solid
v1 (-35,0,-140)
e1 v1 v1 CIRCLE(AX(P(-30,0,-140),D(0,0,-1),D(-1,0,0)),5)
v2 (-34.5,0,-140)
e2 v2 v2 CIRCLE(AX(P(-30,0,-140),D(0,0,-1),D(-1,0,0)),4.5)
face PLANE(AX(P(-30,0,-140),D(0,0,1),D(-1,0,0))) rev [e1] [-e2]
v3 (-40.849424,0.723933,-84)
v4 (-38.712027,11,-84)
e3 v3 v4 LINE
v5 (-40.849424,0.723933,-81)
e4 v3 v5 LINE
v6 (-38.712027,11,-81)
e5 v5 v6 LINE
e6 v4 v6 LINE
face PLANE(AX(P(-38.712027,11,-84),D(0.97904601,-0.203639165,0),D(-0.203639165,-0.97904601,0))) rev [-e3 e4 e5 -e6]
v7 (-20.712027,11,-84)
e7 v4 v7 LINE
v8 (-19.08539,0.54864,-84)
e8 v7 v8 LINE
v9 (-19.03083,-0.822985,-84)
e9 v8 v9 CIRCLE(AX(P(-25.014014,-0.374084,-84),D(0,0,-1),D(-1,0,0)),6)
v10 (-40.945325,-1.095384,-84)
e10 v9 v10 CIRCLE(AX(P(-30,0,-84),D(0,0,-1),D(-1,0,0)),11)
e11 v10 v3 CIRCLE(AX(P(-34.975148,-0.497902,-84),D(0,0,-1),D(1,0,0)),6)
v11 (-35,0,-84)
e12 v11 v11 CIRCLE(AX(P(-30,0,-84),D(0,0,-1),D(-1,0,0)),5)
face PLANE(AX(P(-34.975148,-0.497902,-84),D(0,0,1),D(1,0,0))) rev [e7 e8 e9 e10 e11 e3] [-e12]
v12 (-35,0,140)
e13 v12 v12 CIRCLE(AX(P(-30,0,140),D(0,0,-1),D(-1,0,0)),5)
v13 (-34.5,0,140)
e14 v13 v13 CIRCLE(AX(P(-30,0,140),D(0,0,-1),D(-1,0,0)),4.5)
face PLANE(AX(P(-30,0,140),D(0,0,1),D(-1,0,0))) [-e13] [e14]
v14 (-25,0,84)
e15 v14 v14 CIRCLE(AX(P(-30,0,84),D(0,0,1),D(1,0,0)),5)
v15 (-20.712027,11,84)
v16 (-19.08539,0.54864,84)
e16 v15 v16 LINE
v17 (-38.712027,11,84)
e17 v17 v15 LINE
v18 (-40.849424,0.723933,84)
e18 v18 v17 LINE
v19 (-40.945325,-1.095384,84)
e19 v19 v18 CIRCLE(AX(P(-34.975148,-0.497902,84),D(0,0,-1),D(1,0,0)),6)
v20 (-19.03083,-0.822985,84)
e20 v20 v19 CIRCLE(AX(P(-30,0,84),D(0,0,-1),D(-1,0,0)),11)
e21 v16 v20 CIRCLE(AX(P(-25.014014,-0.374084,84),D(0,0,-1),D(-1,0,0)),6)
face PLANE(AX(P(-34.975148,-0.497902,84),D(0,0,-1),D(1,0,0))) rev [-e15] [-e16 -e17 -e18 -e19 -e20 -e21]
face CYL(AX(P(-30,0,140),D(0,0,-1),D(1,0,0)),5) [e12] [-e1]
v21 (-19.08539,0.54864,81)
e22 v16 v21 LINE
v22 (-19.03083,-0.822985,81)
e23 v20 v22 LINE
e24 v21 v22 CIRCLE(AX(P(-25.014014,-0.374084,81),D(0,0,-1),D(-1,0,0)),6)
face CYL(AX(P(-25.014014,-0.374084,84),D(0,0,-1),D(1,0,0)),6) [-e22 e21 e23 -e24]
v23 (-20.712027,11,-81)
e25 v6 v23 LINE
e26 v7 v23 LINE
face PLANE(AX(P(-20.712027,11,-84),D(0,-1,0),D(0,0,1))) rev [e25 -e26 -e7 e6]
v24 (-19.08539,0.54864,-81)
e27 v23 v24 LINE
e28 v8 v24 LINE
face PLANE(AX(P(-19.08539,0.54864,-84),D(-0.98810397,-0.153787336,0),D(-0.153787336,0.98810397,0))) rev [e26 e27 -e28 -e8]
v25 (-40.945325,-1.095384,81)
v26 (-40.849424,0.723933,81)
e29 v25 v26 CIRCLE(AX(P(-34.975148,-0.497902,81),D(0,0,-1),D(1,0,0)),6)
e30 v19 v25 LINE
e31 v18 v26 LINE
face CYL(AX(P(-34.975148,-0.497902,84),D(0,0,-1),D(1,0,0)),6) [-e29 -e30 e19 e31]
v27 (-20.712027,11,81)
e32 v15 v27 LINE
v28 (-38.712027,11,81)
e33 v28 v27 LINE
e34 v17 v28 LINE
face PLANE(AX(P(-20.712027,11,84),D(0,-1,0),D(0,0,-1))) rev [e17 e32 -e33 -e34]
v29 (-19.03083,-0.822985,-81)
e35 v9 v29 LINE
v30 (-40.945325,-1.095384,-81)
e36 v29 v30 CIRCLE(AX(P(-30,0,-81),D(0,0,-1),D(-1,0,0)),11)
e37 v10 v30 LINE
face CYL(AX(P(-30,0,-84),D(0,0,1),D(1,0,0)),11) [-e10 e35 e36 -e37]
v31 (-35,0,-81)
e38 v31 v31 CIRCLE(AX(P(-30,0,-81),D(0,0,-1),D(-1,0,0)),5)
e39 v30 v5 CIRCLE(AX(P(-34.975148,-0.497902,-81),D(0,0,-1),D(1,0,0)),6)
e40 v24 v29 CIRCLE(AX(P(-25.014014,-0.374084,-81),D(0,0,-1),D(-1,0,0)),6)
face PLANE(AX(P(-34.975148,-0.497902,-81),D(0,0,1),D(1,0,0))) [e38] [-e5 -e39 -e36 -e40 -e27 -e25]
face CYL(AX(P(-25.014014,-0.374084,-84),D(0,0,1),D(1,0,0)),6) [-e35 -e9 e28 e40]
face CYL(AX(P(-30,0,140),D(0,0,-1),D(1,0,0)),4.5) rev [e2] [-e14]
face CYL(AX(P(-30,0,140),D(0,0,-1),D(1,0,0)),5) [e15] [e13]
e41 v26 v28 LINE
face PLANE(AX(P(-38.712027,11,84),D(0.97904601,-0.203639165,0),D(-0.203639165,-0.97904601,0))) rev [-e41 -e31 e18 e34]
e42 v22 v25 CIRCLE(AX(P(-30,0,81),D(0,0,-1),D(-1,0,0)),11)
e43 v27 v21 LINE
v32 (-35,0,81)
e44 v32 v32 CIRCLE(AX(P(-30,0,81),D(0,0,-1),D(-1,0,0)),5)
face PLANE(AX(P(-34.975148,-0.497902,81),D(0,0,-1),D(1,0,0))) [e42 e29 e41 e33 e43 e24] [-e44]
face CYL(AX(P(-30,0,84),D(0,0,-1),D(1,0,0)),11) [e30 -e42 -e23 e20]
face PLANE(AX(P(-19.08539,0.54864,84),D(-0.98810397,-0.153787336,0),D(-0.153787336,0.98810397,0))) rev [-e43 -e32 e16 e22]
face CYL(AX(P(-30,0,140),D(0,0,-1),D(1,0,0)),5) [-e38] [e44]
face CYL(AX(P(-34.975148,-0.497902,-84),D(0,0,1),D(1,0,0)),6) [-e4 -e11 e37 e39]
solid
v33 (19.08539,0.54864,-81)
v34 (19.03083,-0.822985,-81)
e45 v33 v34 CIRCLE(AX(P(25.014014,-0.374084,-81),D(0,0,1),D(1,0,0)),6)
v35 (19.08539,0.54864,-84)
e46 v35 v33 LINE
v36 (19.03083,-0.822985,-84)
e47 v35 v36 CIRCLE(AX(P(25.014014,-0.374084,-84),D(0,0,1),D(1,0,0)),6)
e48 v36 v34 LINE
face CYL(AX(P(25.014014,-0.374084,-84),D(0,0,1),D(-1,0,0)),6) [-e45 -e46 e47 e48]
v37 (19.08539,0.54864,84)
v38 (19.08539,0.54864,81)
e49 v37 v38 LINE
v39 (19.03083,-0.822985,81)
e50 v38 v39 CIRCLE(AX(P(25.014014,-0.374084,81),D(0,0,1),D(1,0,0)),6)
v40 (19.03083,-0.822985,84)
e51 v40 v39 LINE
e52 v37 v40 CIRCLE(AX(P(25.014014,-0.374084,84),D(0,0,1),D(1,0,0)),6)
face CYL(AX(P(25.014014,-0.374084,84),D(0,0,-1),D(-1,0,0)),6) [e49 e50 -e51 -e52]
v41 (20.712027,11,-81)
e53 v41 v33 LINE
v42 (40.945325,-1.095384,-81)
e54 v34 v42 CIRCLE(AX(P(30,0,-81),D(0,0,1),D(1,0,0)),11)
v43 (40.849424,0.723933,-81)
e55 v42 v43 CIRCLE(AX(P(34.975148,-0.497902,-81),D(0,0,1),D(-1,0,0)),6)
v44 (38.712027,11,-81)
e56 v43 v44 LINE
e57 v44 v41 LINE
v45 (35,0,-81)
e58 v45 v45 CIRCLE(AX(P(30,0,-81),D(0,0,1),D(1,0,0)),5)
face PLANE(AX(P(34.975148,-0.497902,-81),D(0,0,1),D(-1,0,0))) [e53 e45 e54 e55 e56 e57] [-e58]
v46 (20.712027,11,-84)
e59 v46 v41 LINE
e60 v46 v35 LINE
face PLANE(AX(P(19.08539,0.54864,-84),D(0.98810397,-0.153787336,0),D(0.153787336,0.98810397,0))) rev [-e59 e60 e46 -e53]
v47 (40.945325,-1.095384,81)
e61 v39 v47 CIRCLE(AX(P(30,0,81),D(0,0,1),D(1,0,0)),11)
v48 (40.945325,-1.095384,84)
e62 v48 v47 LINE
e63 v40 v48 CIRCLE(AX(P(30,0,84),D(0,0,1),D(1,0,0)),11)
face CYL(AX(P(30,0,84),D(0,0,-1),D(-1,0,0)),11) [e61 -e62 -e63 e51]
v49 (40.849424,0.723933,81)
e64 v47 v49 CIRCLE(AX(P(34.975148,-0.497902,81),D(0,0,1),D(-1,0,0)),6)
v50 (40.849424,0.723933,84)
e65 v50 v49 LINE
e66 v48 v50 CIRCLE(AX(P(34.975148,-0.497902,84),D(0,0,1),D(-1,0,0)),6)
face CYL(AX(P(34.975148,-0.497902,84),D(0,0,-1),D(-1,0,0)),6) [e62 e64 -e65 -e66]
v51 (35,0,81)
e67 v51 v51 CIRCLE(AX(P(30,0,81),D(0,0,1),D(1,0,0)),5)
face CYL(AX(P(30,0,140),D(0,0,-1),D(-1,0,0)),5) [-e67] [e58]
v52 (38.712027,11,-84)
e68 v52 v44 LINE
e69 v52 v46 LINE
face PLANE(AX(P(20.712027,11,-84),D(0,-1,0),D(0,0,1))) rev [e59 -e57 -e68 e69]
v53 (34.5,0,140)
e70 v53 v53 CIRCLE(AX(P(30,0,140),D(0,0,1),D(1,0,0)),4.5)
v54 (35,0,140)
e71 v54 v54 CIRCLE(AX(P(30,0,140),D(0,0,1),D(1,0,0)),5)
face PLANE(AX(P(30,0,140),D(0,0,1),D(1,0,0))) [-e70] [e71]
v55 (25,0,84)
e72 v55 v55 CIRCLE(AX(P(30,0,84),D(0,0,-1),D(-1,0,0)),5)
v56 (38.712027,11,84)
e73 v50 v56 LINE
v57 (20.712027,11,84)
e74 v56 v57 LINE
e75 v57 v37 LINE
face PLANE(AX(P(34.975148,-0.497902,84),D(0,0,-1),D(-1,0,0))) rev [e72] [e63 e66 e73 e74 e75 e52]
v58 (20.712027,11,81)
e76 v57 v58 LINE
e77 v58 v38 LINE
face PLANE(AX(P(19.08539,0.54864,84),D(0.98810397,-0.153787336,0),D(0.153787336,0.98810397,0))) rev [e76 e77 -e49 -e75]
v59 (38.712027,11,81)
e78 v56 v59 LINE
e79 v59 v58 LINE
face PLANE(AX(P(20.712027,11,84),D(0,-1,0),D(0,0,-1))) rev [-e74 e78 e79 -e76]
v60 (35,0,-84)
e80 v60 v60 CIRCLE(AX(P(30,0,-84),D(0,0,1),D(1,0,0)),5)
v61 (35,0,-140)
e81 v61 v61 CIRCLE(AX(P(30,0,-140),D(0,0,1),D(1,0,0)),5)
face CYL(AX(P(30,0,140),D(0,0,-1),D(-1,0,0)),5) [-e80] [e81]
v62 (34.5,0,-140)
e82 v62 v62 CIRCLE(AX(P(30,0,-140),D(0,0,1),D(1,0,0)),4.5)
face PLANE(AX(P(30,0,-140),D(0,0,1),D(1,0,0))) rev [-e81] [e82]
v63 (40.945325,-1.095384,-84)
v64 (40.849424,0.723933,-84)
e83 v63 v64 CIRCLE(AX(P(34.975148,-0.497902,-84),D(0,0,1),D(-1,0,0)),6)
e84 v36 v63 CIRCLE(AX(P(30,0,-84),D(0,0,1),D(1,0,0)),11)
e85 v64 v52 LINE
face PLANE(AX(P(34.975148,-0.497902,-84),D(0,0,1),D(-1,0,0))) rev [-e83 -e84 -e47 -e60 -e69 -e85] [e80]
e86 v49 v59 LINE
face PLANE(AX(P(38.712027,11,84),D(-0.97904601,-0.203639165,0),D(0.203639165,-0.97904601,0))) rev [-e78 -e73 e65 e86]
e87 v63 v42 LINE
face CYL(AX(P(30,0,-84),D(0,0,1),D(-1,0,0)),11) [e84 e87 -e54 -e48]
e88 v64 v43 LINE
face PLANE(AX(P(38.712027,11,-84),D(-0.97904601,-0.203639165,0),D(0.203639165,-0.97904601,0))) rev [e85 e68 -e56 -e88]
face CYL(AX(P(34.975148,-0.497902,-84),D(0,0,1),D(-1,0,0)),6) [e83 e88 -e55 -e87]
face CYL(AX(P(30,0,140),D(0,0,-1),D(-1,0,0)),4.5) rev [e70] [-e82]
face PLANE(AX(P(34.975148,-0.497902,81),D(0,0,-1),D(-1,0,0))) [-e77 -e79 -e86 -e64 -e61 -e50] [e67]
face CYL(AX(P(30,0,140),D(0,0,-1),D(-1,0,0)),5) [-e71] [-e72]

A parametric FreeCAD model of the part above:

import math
import FreeCAD as App
import Part
import Sketcher
from FreeCAD import Vector

doc = App.newDocument("Part")
body = doc.addObject("PartDesign::Body", "Body")

sketch1 = doc.addObject("Sketcher::SketchObject", "Sketch")
body.addObject(sketch1)
sketch1.AttachmentSupport = (doc.XY_Plane, [""])
sketch1.MapMode = "FlatFace"
sketch1.addGeometry([
    Part.Circle(Vector(30, 0, 0), Vector(0, 0, 1), 5),
    Part.Circle(Vector(30, 0, 0), Vector(0, 0, 1), 4.5),
], False)
sketch1.addConstraint([
    Sketcher.Constraint("Coincident", 1, 3, 0, 3),
    Sketcher.Constraint("PointOnObject", 0, 3, -1),
    Sketcher.Constraint("Diameter", 0, 10.0),
    Sketcher.Constraint("Diameter", 1, 9.0),
    Sketcher.Constraint("DistanceX", -1, 1, 0, 3, 30.0),
])
pad1 = doc.addObject("PartDesign::Pad", "Pad")
body.addObject(pad1)
pad1.Profile = sketch1
pad1.Length = 280
pad1.Midplane = True

sketch2 = doc.addObject("Sketcher::SketchObject", "Sketch001")
body.addObject(sketch2)
sketch2.AttachmentSupport = (doc.XY_Plane, [""])
sketch2.MapMode = "FlatFace"
sketch2.AttachmentOffset = App.Placement(Vector(0, 0, 82.5), App.Rotation())
sketch2.addGeometry([
    Part.LineSegment(Vector(20.712027, 11, 0), Vector(19.08539, 0.54864, 0)),
    Part.ArcOfCircle(Part.Circle(Vector(25.014014, -0.374084, 0), Vector(0, 0, 1), 6), math.radians(171.153528), math.radians(184.290695)),
    Part.ArcOfCircle(Part.Circle(Vector(30, 0, 0), Vector(0, 0, 1), 11), math.radians(-175.709305), math.radians(-5.715006)),
    Part.ArcOfCircle(Part.Circle(Vector(34.975148, -0.497902, 0), Vector(0, 0, 1), 6), math.radians(-5.715006), math.radians(11.749849)),
    Part.LineSegment(Vector(40.849424, 0.723933, 0), Vector(38.712027, 11, 0)),
    Part.LineSegment(Vector(38.712027, 11, 0), Vector(20.712027, 11, 0)),
    Part.Circle(Vector(30, 0, 0), Vector(0, 0, 1), 5),
], False)
sketch2.addConstraint([
    Sketcher.Constraint("Tangent", 0, 2, 1, 1),
    Sketcher.Constraint("Tangent", 1, 2, 2, 1),
    Sketcher.Constraint("Tangent", 2, 2, 3, 1),
    Sketcher.Constraint("Tangent", 3, 2, 4, 1),
    Sketcher.Constraint("Coincident", 4, 2, 5, 1),
    Sketcher.Constraint("Coincident", 5, 2, 0, 1),
    Sketcher.Constraint("Horizontal", 5),
    Sketcher.Constraint("Coincident", 6, 3, 2, 3),
    Sketcher.Constraint("Equal", 1, 3),
    Sketcher.Constraint("PointOnObject", 2, 3, -1),
    Sketcher.Constraint("Diameter", 6, 10.0),
    Sketcher.Constraint("Radius", 1, 6.0),
    Sketcher.Constraint("Radius", 2, 11.0),
    Sketcher.Constraint("DistanceX", 5, 2, 5, 1, 18.0),
    Sketcher.Constraint("DistanceX", -1, 1, 2, 3, 30.0),
    Sketcher.Constraint("DistanceY", -1, 1, 4, 2, 11.0),
    Sketcher.Constraint("Distance", 4, 10.496),
    Sketcher.Constraint("DistanceY", 3, 3, -1, 1, 0.497902),
    Sketcher.Constraint("DistanceY", 1, 2, 1, 3, 0.448901),
])
pad2 = doc.addObject("PartDesign::Pad", "Pad001")
body.addObject(pad2)
pad2.Profile = sketch2
pad2.Length = 3
pad2.Midplane = True
body2 = doc.addObject("PartDesign::Body", "Body001")
doc.recompute()

body2.BaseFeature = body
doc.recompute()

mirroring = doc.addObject("Part::Mirroring", "Mirroring")
mirroring.Source = body
mirroring.Base = Vector(0, 0, 0)
mirroring.Normal = Vector(0, 0, 1)
body3 = doc.addObject("PartDesign::Body", "Body002")
body3.BaseFeature = mirroring
boolean = doc.addObject("PartDesign::Boolean", "Boolean")
body2.addObject(boolean)
boolean.Type = "Fuse"
boolean.addObjects([body3])
doc.recompute()
body4 = doc.addObject("PartDesign::Body", "Body003")
doc.recompute()

mirroring2 = doc.addObject("Part::Mirroring", "Mirroring001")
mirroring2.Source = body2
mirroring2.Base = Vector(0, 0, 0)
mirroring2.Normal = Vector(1, 0, 0)
body4.BaseFeature = mirroring2
doc.recompute()
mirroring.Visibility = False
mirroring2.Visibility = False

doc.recompute()
